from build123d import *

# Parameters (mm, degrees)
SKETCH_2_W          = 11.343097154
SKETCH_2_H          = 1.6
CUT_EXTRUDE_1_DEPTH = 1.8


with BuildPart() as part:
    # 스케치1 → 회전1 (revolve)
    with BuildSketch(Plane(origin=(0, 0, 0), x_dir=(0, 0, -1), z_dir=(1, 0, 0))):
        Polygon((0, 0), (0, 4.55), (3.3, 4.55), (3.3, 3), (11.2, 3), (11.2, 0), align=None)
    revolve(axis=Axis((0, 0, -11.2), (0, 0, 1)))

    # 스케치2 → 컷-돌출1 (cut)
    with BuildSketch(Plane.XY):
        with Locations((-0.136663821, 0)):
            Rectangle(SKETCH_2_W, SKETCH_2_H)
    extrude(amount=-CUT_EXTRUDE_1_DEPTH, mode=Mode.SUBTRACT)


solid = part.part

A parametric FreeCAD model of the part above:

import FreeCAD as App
import Part
import Sketcher
Q = App.Units.Quantity

doc = App.newDocument("Part")
body = doc.addObject("PartDesign::Body", "Body")

# Sketch on YZ plane
sketch1 = doc.addObject("Sketcher::SketchObject", "Sketch")
body.addObject(sketch1)
sketch1.AttachmentSupport = (doc.YZ_Plane, [""])
sketch1.MapMode = "FlatFace"
sketch1.addGeometry(Part.LineSegment(App.Vector(4.5, 0, 0), App.Vector(0, 0, 0)), False)
sketch1.addGeometry(Part.LineSegment(App.Vector(0, 0, 0), App.Vector(0, -11.2, 0)), False)
sketch1.addGeometry(Part.LineSegment(App.Vector(0, -11.2, 0), App.Vector(3, -11.2, 0)), False)
sketch1.addGeometry(Part.LineSegment(App.Vector(3, -11.2, 0), App.Vector(3, -3.3, 0)), False)
sketch1.addGeometry(Part.LineSegment(App.Vector(3, -3.3, 0), App.Vector(4.5, -3.3, 0)), False)
sketch1.addGeometry(Part.LineSegment(App.Vector(4.5, -3.3, 0), App.Vector(4.5, 0, 0)), False)
sketch1.addConstraint(Sketcher.Constraint("Coincident", 0, 2, 1, 1))
sketch1.addConstraint(Sketcher.Constraint("Coincident", 1, 2, 2, 1))
sketch1.addConstraint(Sketcher.Constraint("Coincident", 2, 2, 3, 1))
sketch1.addConstraint(Sketcher.Constraint("Coincident", 3, 2, 4, 1))
sketch1.addConstraint(Sketcher.Constraint("Coincident", 4, 2, 5, 1))
sketch1.addConstraint(Sketcher.Constraint("Coincident", 5, 2, 0, 1))
sketch1.addConstraint(Sketcher.Constraint("Horizontal", 0))
sketch1.addConstraint(Sketcher.Constraint("Vertical", 1))
sketch1.addConstraint(Sketcher.Constraint("Horizontal", 2))
sketch1.addConstraint(Sketcher.Constraint("Vertical", 3))
sketch1.addConstraint(Sketcher.Constraint("Horizontal", 4))
sketch1.addConstraint(Sketcher.Constraint("Vertical", 5))
sketch1.addConstraint(Sketcher.Constraint("Coincident", 0, 2, -1, 1))
sketch1.addConstraint(Sketcher.Constraint("DistanceX", 2, 1, 2, 2, Q("3 mm")))
sketch1.addConstraint(Sketcher.Constraint("DistanceY", 1, 2, 1, 1, Q("11.2 mm")))
sketch1.addConstraint(Sketcher.Constraint("DistanceY", 3, 1, 3, 2, Q("7.9 mm")))
sketch1.addConstraint(Sketcher.Constraint("DistanceX", 0, 2, 0, 1, Q("4.55 mm")))
revolution = doc.addObject("PartDesign::Revolution", "Revolution")
body.addObject(revolution)
revolution.Profile = sketch1
revolution.ReferenceAxis = (sketch1, ["V_Axis"])
revolution.Angle = 360

# Sketch on XY plane
sketch2 = doc.addObject("Sketcher::SketchObject", "Sketch001")
body.addObject(sketch2)
sketch2.AttachmentSupport = (doc.XY_Plane, [""])
sketch2.MapMode = "FlatFace"
sketch2.addGeometry(Part.LineSegment(App.Vector(-5.8, 0.8, 0), App.Vector(-5.8, -0.8, 0)), False)
sketch2.addGeometry(Part.LineSegment(App.Vector(-5.8, -0.8, 0), App.Vector(5.5, -0.8, 0)), False)
sketch2.addGeometry(Part.LineSegment(App.Vector(5.5, -0.8, 0), App.Vector(5.5, 0.8, 0)), False)
sketch2.addGeometry(Part.LineSegment(App.Vector(5.5, 0.8, 0), App.Vector(-5.8, 0.8, 0)), False)
sketch2.addConstraint(Sketcher.Constraint("Coincident", 0, 2, 1, 1))
sketch2.addConstraint(Sketcher.Constraint("Coincident", 1, 2, 2, 1))
sketch2.addConstraint(Sketcher.Constraint("Coincident", 2, 2, 3, 1))
sketch2.addConstraint(Sketcher.Constraint("Coincident", 3, 2, 0, 1))
sketch2.addConstraint(Sketcher.Constraint("Vertical", 0))
sketch2.addConstraint(Sketcher.Constraint("Horizontal", 1))
sketch2.addConstraint(Sketcher.Constraint("Vertical", 2))
sketch2.addConstraint(Sketcher.Constraint("Horizontal", 3))
sketch2.addConstraint(Sketcher.Constraint("DistanceY", 0, 2, 0, 1, Q("1.6 mm")))
sketch2.addConstraint(Sketcher.Constraint("DistanceY", 0, 2, -1, 1, Q("0.8 mm")))
sketch2.addConstraint(Sketcher.Constraint("DistanceX", 1, 1, 1, 2, Q("11.343097 mm")))
sketch2.addConstraint(Sketcher.Constraint("DistanceX", 0, 2, -1, 1, Q("5.808212 mm")))
pocket1 = doc.addObject("PartDesign::Pocket", "Pocket")
body.addObject(pocket1)
pocket1.Profile = sketch2
pocket1.Length = 1.8

doc.recompute()
